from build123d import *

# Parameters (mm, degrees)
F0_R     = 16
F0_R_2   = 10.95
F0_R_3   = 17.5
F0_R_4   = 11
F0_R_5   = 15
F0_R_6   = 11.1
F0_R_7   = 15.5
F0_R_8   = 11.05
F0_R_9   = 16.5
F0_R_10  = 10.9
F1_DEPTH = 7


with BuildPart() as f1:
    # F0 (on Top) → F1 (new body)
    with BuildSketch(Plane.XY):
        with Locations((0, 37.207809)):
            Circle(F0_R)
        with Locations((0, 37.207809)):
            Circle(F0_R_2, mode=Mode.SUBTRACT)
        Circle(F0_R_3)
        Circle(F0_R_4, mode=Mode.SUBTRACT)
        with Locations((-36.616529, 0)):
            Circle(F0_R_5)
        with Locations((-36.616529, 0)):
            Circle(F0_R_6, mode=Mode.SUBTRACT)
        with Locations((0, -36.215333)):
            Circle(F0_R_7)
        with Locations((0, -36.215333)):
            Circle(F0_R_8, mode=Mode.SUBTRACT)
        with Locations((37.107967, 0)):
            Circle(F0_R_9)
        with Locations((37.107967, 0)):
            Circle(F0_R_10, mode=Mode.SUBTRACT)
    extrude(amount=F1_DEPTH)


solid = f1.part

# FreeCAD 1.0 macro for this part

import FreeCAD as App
import Part
import Sketcher

V = App.Vector

doc = App.newDocument("Part")
body = doc.addObject("PartDesign::Body", "Body")
body.AllowCompound = True

sketch1 = body.newObject("Sketcher::SketchObject", "Sketch")
sketch1.AttachmentSupport = (doc.getObject("XY_Plane"), [""])
sketch1.MapMode = "FlatFace"
sketch1.addGeometry(Part.Circle(V(0, 37, 0), V(0, 0, 1), 16), False)
sketch1.addGeometry(Part.Circle(V(0, 37, 0), V(0, 0, 1), 11), False)
sketch1.addGeometry(Part.Circle(V(0, 0, 0), V(0, 0, 1), 18), False)
sketch1.addGeometry(Part.Circle(V(0, 0, 0), V(0, 0, 1), 11), False)
sketch1.addGeometry(Part.Circle(V(-37, 0, 0), V(0, 0, 1), 15), False)
sketch1.addGeometry(Part.Circle(V(-37, 0, 0), V(0, 0, 1), 11), False)
sketch1.addGeometry(Part.Circle(V(0, -36, 0), V(0, 0, 1), 16), False)
sketch1.addGeometry(Part.Circle(V(0, -36, 0), V(0, 0, 1), 11), False)
sketch1.addGeometry(Part.Circle(V(37, 0, 0), V(0, 0, 1), 16), False)
sketch1.addGeometry(Part.Circle(V(37, 0, 0), V(0, 0, 1), 11), False)
sketch1.addConstraint(Sketcher.Constraint("Coincident", 2, 3, -1, 1))
sketch1.addConstraint(Sketcher.Constraint("Coincident", 3, 3, -1, 1))
sketch1.addConstraint(Sketcher.Constraint("Coincident", 1, 3, 0, 3))
sketch1.addConstraint(Sketcher.Constraint("Coincident", 5, 3, 4, 3))
sketch1.addConstraint(Sketcher.Constraint("Coincident", 7, 3, 6, 3))
sketch1.addConstraint(Sketcher.Constraint("Coincident", 9, 3, 8, 3))
sketch1.addConstraint(Sketcher.Constraint("PointOnObject", 0, 3, -2))
sketch1.addConstraint(Sketcher.Constraint("PointOnObject", 4, 3, -1))
sketch1.addConstraint(Sketcher.Constraint("PointOnObject", 6, 3, -2))
sketch1.addConstraint(Sketcher.Constraint("PointOnObject", 8, 3, -1))
sketch1.addConstraint(Sketcher.Constraint("Diameter", 0, 32.0))
sketch1.addConstraint(Sketcher.Constraint("Diameter", 2, 35.0))
sketch1.addConstraint(Sketcher.Constraint("Diameter", 3, 22.0))
sketch1.addConstraint(Sketcher.Constraint("Diameter", 4, 30.0))
sketch1.addConstraint(Sketcher.Constraint("Diameter", 6, 31.0))
sketch1.addConstraint(Sketcher.Constraint("Diameter", 8, 33.0))
sketch1.addConstraint(Sketcher.Constraint("Diameter", 1, 21.9))
sketch1.addConstraint(Sketcher.Constraint("Diameter", 5, 22.2))
sketch1.addConstraint(Sketcher.Constraint("Diameter", 7, 22.1))
sketch1.addConstraint(Sketcher.Constraint("Diameter", 9, 21.8))
sketch1.addConstraint(Sketcher.Constraint("DistanceY", -1, 1, 0, 3, 37.207809))
sketch1.addConstraint(Sketcher.Constraint("DistanceX", 4, 3, -1, 1, 36.616529))
sketch1.addConstraint(Sketcher.Constraint("DistanceY", 6, 3, 0, 3, 73.423142))
sketch1.addConstraint(Sketcher.Constraint("DistanceX", -1, 1, 8, 3, 37.107967))
pad1 = body.newObject("PartDesign::Pad", "Pad")
pad1.Profile = sketch1
pad1.Length = 7

doc.recompute()
